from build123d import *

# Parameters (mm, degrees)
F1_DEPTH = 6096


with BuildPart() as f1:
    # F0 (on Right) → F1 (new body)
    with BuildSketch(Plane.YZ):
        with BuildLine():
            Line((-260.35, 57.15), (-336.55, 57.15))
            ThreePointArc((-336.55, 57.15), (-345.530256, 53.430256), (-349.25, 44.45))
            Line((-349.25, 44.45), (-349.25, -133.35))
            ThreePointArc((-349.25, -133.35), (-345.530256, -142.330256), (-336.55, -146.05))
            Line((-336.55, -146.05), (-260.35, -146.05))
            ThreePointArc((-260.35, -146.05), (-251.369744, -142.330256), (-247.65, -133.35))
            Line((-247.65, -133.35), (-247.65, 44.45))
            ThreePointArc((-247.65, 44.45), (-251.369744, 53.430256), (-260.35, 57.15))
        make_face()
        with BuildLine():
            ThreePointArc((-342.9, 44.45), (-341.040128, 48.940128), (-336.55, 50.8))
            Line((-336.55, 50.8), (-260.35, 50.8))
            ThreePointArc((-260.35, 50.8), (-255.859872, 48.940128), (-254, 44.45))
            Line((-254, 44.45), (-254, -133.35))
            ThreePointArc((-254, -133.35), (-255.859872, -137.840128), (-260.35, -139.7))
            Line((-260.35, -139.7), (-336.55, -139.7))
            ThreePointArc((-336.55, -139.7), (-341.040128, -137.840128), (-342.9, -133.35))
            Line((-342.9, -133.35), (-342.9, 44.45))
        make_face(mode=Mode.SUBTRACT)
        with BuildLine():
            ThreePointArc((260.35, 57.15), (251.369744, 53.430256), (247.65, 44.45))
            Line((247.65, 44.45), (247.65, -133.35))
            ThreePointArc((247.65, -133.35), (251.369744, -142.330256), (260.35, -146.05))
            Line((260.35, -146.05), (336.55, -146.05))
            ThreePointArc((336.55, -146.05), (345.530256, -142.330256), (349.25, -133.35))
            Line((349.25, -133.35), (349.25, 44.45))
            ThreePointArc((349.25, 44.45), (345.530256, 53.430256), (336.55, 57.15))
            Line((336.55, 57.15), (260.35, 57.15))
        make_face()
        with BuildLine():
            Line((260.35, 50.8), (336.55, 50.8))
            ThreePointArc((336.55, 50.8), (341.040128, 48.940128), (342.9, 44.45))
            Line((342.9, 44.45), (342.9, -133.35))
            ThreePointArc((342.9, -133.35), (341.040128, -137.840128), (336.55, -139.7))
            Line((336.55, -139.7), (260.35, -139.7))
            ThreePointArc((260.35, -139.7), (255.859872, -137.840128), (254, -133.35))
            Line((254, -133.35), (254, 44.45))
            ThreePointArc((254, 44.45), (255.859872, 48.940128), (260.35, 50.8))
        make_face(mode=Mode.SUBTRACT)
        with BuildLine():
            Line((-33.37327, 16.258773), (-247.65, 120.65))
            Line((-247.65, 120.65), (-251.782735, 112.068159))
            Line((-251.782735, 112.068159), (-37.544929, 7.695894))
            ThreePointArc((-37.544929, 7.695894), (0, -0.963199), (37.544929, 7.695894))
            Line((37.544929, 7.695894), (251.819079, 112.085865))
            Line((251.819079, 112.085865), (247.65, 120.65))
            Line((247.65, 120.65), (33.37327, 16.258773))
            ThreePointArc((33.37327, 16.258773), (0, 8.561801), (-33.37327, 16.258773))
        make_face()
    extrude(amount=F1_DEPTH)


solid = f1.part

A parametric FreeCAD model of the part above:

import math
import FreeCAD as App
import Part
import Sketcher

V = App.Vector
Q = App.Units.Quantity

doc = App.newDocument("Part")
body = doc.addObject("PartDesign::Body", "Body")
body.AllowCompound = True

sketch1 = body.newObject("Sketcher::SketchObject", "Sketch")
sketch1.AttachmentSupport = (doc.getObject("YZ_Plane"), [""])
sketch1.MapMode = "FlatFace"
sketch1.addGeometry(Part.LineSegment(V(-260.35, 57.15, 0), V(-336.55, 57.15, 0)), False)
sketch1.addGeometry(Part.ArcOfCircle(Part.Circle(V(-336.55, 44.45, 0), V(0, 0, 1), 12.7), math.radians(90.000002), math.radians(179.999998)), False)
sketch1.addGeometry(Part.LineSegment(V(-349.25, 44.45, 0), V(-349.25, -133.35, 0)), False)
sketch1.addGeometry(Part.ArcOfCircle(Part.Circle(V(-336.55, -133.35, 0), V(0, 0, 1), 12.7), math.radians(-179.999998), math.radians(-90.000002)), False)
sketch1.addGeometry(Part.LineSegment(V(-336.55, -146.05, 0), V(-260.35, -146.05, 0)), False)
sketch1.addGeometry(Part.ArcOfCircle(Part.Circle(V(-260.35, -133.35, 0), V(0, 0, 1), 12.7), math.radians(-89.999998), math.radians(-0.000002)), False)
sketch1.addGeometry(Part.LineSegment(V(-247.65, -133.35, 0), V(-247.65, 44.45, 0)), False)
sketch1.addGeometry(Part.ArcOfCircle(Part.Circle(V(-260.35, 44.45, 0), V(0, 0, 1), 12.7), math.radians(0.000002), math.radians(89.999998)), False)
sketch1.addGeometry(Part.LineSegment(V(-342.9, -133.35, 0), V(-342.9, 44.45, 0)), False)
sketch1.addGeometry(Part.ArcOfCircle(Part.Circle(V(-336.55, 44.45, 0), V(0, 0, 1), 6.35), math.radians(90.000002), math.radians(179.999998)), False)
sketch1.addGeometry(Part.LineSegment(V(-336.55, 50.8, 0), V(-260.35, 50.8, 0)), False)
sketch1.addGeometry(Part.ArcOfCircle(Part.Circle(V(-260.35, 44.45, 0), V(0, 0, 1), 6.35), math.radians(0.000002), math.radians(89.999998)), False)
sketch1.addGeometry(Part.LineSegment(V(-254, 44.45, 0), V(-254, -133.35, 0)), False)
sketch1.addGeometry(Part.ArcOfCircle(Part.Circle(V(-260.35, -133.35, 0), V(0, 0, 1), 6.35), math.radians(-89.999998), math.radians(-0.000002)), False)
sketch1.addGeometry(Part.LineSegment(V(-260.35, -139.7, 0), V(-336.55, -139.7, 0)), False)
sketch1.addGeometry(Part.ArcOfCircle(Part.Circle(V(-336.55, -133.35, 0), V(0, 0, 1), 6.35), math.radians(-179.999998), math.radians(-90.000002)), False)
sketch1.addGeometry(Part.ArcOfCircle(Part.Circle(V(260.35, 44.45, 0), V(0, 0, 1), 12.7), math.radians(90.000002), math.radians(179.999998)), False)
sketch1.addGeometry(Part.LineSegment(V(247.65, 44.45, 0), V(247.65, -133.35, 0)), False)
sketch1.addGeometry(Part.ArcOfCircle(Part.Circle(V(260.35, -133.35, 0), V(0, 0, 1), 12.7), math.radians(-179.999998), math.radians(-90.000002)), False)
sketch1.addGeometry(Part.LineSegment(V(260.35, -146.05, 0), V(336.55, -146.05, 0)), False)
sketch1.addGeometry(Part.ArcOfCircle(Part.Circle(V(336.55, -133.35, 0), V(0, 0, 1), 12.7), math.radians(-89.999998), math.radians(-0.000002)), False)
sketch1.addGeometry(Part.LineSegment(V(349.25, -133.35, 0), V(349.25, 44.45, 0)), False)
sketch1.addGeometry(Part.ArcOfCircle(Part.Circle(V(336.55, 44.45, 0), V(0, 0, 1), 12.7), math.radians(0.000002), math.radians(89.999998)), False)
sketch1.addGeometry(Part.LineSegment(V(336.55, 57.15, 0), V(260.35, 57.15, 0)), False)
sketch1.addGeometry(Part.ArcOfCircle(Part.Circle(V(260.35, 44.45, 0), V(0, 0, 1), 6.35), math.radians(90.000002), math.radians(179.999998)), False)
sketch1.addGeometry(Part.LineSegment(V(260.35, 50.8, 0), V(336.55, 50.8, 0)), False)
sketch1.addGeometry(Part.ArcOfCircle(Part.Circle(V(336.55, 44.45, 0), V(0, 0, 1), 6.35), math.radians(0.000002), math.radians(89.999998)), False)
sketch1.addGeometry(Part.LineSegment(V(342.9, 44.45, 0), V(342.9, -133.35, 0)), False)
sketch1.addGeometry(Part.ArcOfCircle(Part.Circle(V(336.55, -133.35, 0), V(0, 0, 1), 6.35), math.radians(-89.999998), math.radians(-0.000002)), False)
sketch1.addGeometry(Part.LineSegment(V(336.55, -139.7, 0), V(260.35, -139.7, 0)), False)
sketch1.addGeometry(Part.ArcOfCircle(Part.Circle(V(260.35, -133.35, 0), V(0, 0, 1), 6.35), math.radians(-179.999998), math.radians(-90.000002)), False)
sketch1.addGeometry(Part.LineSegment(V(254, -133.35, 0), V(254, 44.45, 0)), False)
sketch1.addGeometry(Part.LineSegment(V(-33.37327, 16.258773, 0), V(-247.65, 120.65, 0)), False)
sketch1.addGeometry(Part.LineSegment(V(-247.65, 120.65, 0), V(-251.782735, 112.068159, 0)), False)
sketch1.addGeometry(Part.LineSegment(V(-251.782735, 112.068159, 0), V(-37.544929, 7.695894, 0)), False)
sketch1.addGeometry(Part.ArcOfCircle(Part.Circle(V(0, 84.761806, 0), V(0, 0, 1), 85.725005), math.radians(-115.974392), math.radians(-64.025608)), False)
sketch1.addGeometry(Part.LineSegment(V(37.544929, 7.695894, 0), V(251.819079, 112.085865, 0)), False)
sketch1.addGeometry(Part.LineSegment(V(251.819079, 112.085865, 0), V(247.65, 120.65, 0)), False)
sketch1.addGeometry(Part.LineSegment(V(247.65, 120.65, 0), V(33.37327, 16.258773, 0)), False)
sketch1.addGeometry(Part.ArcOfCircle(Part.Circle(V(0, 84.761801, 0), V(0, 0, 1), 76.2), math.radians(-115.974394), math.radians(-64.025606)), False)
sketch1.addConstraint(Sketcher.Constraint("Coincident", 0, 2, 1, 1))
sketch1.addConstraint(Sketcher.Constraint("Coincident", 1, 2, 2, 1))
sketch1.addConstraint(Sketcher.Constraint("Coincident", 2, 2, 3, 1))
sketch1.addConstraint(Sketcher.Constraint("Coincident", 3, 2, 4, 1))
sketch1.addConstraint(Sketcher.Constraint("Coincident", 4, 2, 5, 1))
sketch1.addConstraint(Sketcher.Constraint("Coincident", 5, 2, 6, 1))
sketch1.addConstraint(Sketcher.Constraint("Coincident", 6, 2, 7, 1))
sketch1.addConstraint(Sketcher.Constraint("Coincident", 7, 2, 0, 1))
sketch1.addConstraint(Sketcher.Constraint("Coincident", 8, 2, 9, 2))
sketch1.addConstraint(Sketcher.Constraint("Coincident", 9, 1, 10, 1))
sketch1.addConstraint(Sketcher.Constraint("Coincident", 10, 2, 11, 2))
sketch1.addConstraint(Sketcher.Constraint("Coincident", 11, 1, 12, 1))
sketch1.addConstraint(Sketcher.Constraint("Coincident", 12, 2, 13, 2))
sketch1.addConstraint(Sketcher.Constraint("Coincident", 13, 1, 14, 1))
sketch1.addConstraint(Sketcher.Constraint("Coincident", 14, 2, 15, 2))
sketch1.addConstraint(Sketcher.Constraint("Coincident", 15, 1, 8, 1))
sketch1.addConstraint(Sketcher.Constraint("Coincident", 16, 2, 17, 1))
sketch1.addConstraint(Sketcher.Constraint("Coincident", 17, 2, 18, 1))
sketch1.addConstraint(Sketcher.Constraint("Coincident", 18, 2, 19, 1))
sketch1.addConstraint(Sketcher.Constraint("Coincident", 19, 2, 20, 1))
sketch1.addConstraint(Sketcher.Constraint("Coincident", 20, 2, 21, 1))
sketch1.addConstraint(Sketcher.Constraint("Coincident", 21, 2, 22, 1))
sketch1.addConstraint(Sketcher.Constraint("Coincident", 22, 2, 23, 1))
sketch1.addConstraint(Sketcher.Constraint("Coincident", 23, 2, 16, 1))
sketch1.addConstraint(Sketcher.Constraint("Coincident", 24, 1, 25, 1))
sketch1.addConstraint(Sketcher.Constraint("Coincident", 25, 2, 26, 2))
sketch1.addConstraint(Sketcher.Constraint("Coincident", 26, 1, 27, 1))
sketch1.addConstraint(Sketcher.Constraint("Coincident", 27, 2, 28, 2))
sketch1.addConstraint(Sketcher.Constraint("Coincident", 28, 1, 29, 1))
sketch1.addConstraint(Sketcher.Constraint("Coincident", 29, 2, 30, 2))
sketch1.addConstraint(Sketcher.Constraint("Coincident", 30, 1, 31, 1))
sketch1.addConstraint(Sketcher.Constraint("Coincident", 31, 2, 24, 2))
sketch1.addConstraint(Sketcher.Constraint("Coincident", 32, 2, 33, 1))
sketch1.addConstraint(Sketcher.Constraint("Coincident", 33, 2, 34, 1))
sketch1.addConstraint(Sketcher.Constraint("Coincident", 34, 2, 35, 1))
sketch1.addConstraint(Sketcher.Constraint("Coincident", 35, 2, 36, 1))
sketch1.addConstraint(Sketcher.Constraint("Coincident", 36, 2, 37, 1))
sketch1.addConstraint(Sketcher.Constraint("Coincident", 37, 2, 38, 1))
sketch1.addConstraint(Sketcher.Constraint("Coincident", 38, 2, 39, 2))
sketch1.addConstraint(Sketcher.Constraint("Coincident", 39, 1, 32, 1))
sketch1.addConstraint(Sketcher.Constraint("Horizontal", 0))
sketch1.addConstraint(Sketcher.Constraint("Vertical", 2))
sketch1.addConstraint(Sketcher.Constraint("Horizontal", 4))
sketch1.addConstraint(Sketcher.Constraint("Vertical", 6))
sketch1.addConstraint(Sketcher.Constraint("Vertical", 8))
sketch1.addConstraint(Sketcher.Constraint("Horizontal", 10))
sketch1.addConstraint(Sketcher.Constraint("Vertical", 12))
sketch1.addConstraint(Sketcher.Constraint("Horizontal", 14))
sketch1.addConstraint(Sketcher.Constraint("Vertical", 17))
sketch1.addConstraint(Sketcher.Constraint("Horizontal", 19))
sketch1.addConstraint(Sketcher.Constraint("Vertical", 21))
sketch1.addConstraint(Sketcher.Constraint("Horizontal", 23))
sketch1.addConstraint(Sketcher.Constraint("Horizontal", 25))
sketch1.addConstraint(Sketcher.Constraint("Vertical", 27))
sketch1.addConstraint(Sketcher.Constraint("Horizontal", 29))
sketch1.addConstraint(Sketcher.Constraint("Vertical", 31))
sketch1.addConstraint(Sketcher.Constraint("Coincident", 9, 3, 1, 3))
sketch1.addConstraint(Sketcher.Constraint("Coincident", 11, 3, 7, 3))
sketch1.addConstraint(Sketcher.Constraint("Coincident", 13, 3, 5, 3))
sketch1.addConstraint(Sketcher.Constraint("Coincident", 24, 3, 16, 3))
sketch1.addConstraint(Sketcher.Constraint("Coincident", 26, 3, 22, 3))
sketch1.addConstraint(Sketcher.Constraint("Coincident", 28, 3, 20, 3))
sketch1.addConstraint(Sketcher.Constraint("Coincident", 39, 3, 35, 3))
sketch1.addConstraint(Sketcher.Constraint("PointOnObject", 35, 3, -2))
sketch1.addConstraint(Sketcher.Constraint("Radius", 39, Q("3 in")))
sketch1.addConstraint(Sketcher.Constraint("Radius", 1, Q("0.5 in")))
sketch1.addConstraint(Sketcher.Constraint("Radius", 3, Q("0.5 in")))
sketch1.addConstraint(Sketcher.Constraint("Radius", 5, Q("0.5 in")))
sketch1.addConstraint(Sketcher.Constraint("Radius", 7, Q("0.5 in")))
sketch1.addConstraint(Sketcher.Constraint("Radius", 16, Q("0.5 in")))
sketch1.addConstraint(Sketcher.Constraint("Radius", 18, Q("0.5 in")))
sketch1.addConstraint(Sketcher.Constraint("Radius", 20, Q("0.5 in")))
sketch1.addConstraint(Sketcher.Constraint("Radius", 22, Q("0.5 in")))
sketch1.addConstraint(Sketcher.Constraint("DistanceX", 0, 2, 0, 1, Q("3 in")))
sketch1.addConstraint(Sketcher.Constraint("DistanceX", 4, 1, 4, 2, Q("3 in")))
sketch1.addConstraint(Sketcher.Constraint("DistanceX", 10, 1, 10, 2, Q("3 in")))
sketch1.addConstraint(Sketcher.Constraint("DistanceX", 14, 2, 14, 1, Q("3 in")))
sketch1.addConstraint(Sketcher.Constraint("DistanceX", 19, 1, 19, 2, Q("3 in")))
sketch1.addConstraint(Sketcher.Constraint("DistanceX", 23, 2, 23, 1, Q("3 in")))
sketch1.addConstraint(Sketcher.Constraint("DistanceX", 25, 1, 25, 2, Q("3 in")))
sketch1.addConstraint(Sketcher.Constraint("DistanceX", 29, 2, 29, 1, Q("3 in")))
sketch1.addConstraint(Sketcher.Constraint("DistanceY", 2, 2, 2, 1, Q("7 in")))
sketch1.addConstraint(Sketcher.Constraint("DistanceY", 6, 1, 6, 2, Q("7 in")))
sketch1.addConstraint(Sketcher.Constraint("DistanceY", 8, 1, 8, 2, Q("7 in")))
sketch1.addConstraint(Sketcher.Constraint("DistanceY", 12, 2, 12, 1, Q("7 in")))
sketch1.addConstraint(Sketcher.Constraint("DistanceY", 17, 2, 17, 1, Q("7 in")))
sketch1.addConstraint(Sketcher.Constraint("DistanceY", 21, 1, 21, 2, Q("7 in")))
sketch1.addConstraint(Sketcher.Constraint("DistanceY", 27, 2, 27, 1, Q("7 in")))
sketch1.addConstraint(Sketcher.Constraint("DistanceY", 31, 1, 31, 2, Q("7 in")))
sketch1.addConstraint(Sketcher.Constraint("Radius", 9, Q("0.25 in")))
sketch1.addConstraint(Sketcher.Constraint("Radius", 15, Q("0.25 in")))
sketch1.addConstraint(Sketcher.Constraint("Radius", 24, Q("0.25 in")))
sketch1.addConstraint(Sketcher.Constraint("Radius", 30, Q("0.25 in")))
sketch1.addConstraint(Sketcher.Constraint("DistanceY", -1, 1, 9, 1, Q("2 in")))
sketch1.addConstraint(Sketcher.Constraint("DistanceX", 11, 1, -1, 1, Q("10 in")))
sketch1.addConstraint(Sketcher.Constraint("DistanceY", -1, 1, 24, 1, Q("2 in")))
sketch1.addConstraint(Sketcher.Constraint("DistanceX", -1, 1, 30, 1, Q("10 in")))
sketch1.addConstraint(Sketcher.Constraint("DistanceY", 3, 3, 1, 3, Q("7 in")))
sketch1.addConstraint(Sketcher.Constraint("DistanceX", 3, 3, 5, 3, Q("3 in")))
sketch1.addConstraint(Sketcher.Constraint("DistanceY", 18, 3, 16, 3, Q("7 in")))
sketch1.addConstraint(Sketcher.Constraint("DistanceX", 18, 3, 20, 3, Q("3 in")))
sketch1.addConstraint(Sketcher.Constraint("DistanceX", 0, 2, 7, 3, Q("3 in")))
sketch1.addConstraint(Sketcher.Constraint("DistanceX", 3, 2, 5, 3, Q("3 in")))
sketch1.addConstraint(Sketcher.Constraint("DistanceY", 18, 3, 16, 2, Q("7 in")))
sketch1.addConstraint(Sketcher.Constraint("DistanceX", 18, 2, 20, 3, Q("3 in")))
sketch1.addConstraint(Sketcher.Constraint("DistanceX", 16, 3, 22, 2, Q("3 in")))
sketch1.addConstraint(Sketcher.Constraint("DistanceX", 24, 1, 22, 3, Q("3 in")))
sketch1.addConstraint(Sketcher.Constraint("DistanceY", 6, 2, 32, 2, Q("3 in")))
sketch1.addConstraint(Sketcher.Constraint("DistanceY", 11, 1, 32, 2, Q("3 in")))
sketch1.addConstraint(Sketcher.Constraint("DistanceY", 11, 3, 32, 2, Q("3 in")))
sketch1.addConstraint(Sketcher.Constraint("DistanceY", 16, 2, 37, 2, Q("3 in")))
sketch1.addConstraint(Sketcher.Constraint("DistanceY", 31, 2, 37, 2, Q("3 in")))
sketch1.addConstraint(Sketcher.Constraint("DistanceY", 1, 2, 0, 2, Q("0.5 in")))
sketch1.addConstraint(Sketcher.Constraint("DistanceY", 8, 2, 0, 2, Q("0.5 in")))
sketch1.addConstraint(Sketcher.Constraint("DistanceX", 1, 2, 9, 1, Q("0.5 in")))
sketch1.addConstraint(Sketcher.Constraint("DistanceX", 13, 1, 5, 2, Q("0.5 in")))
sketch1.addConstraint(Sketcher.Constraint("DistanceY", 19, 2, 20, 2, Q("0.5 in")))
sketch1.addConstraint(Sketcher.Constraint("DistanceY", 26, 1, 22, 2, Q("0.5 in")))
sketch1.addConstraint(Sketcher.Constraint("DistanceX", 28, 1, 20, 2, Q("0.5 in")))
sketch1.addConstraint(Sketcher.Constraint("DistanceX", 7, 2, 32, 2, Q("0.5 in")))
sketch1.addConstraint(Sketcher.Constraint("DistanceX", 37, 2, 23, 2, Q("0.5 in")))
sketch1.addConstraint(Sketcher.Constraint("Distance", 37, Q("0.375 in")))
sketch1.addConstraint(Sketcher.Constraint("Radius", 35, Q("85.725005 mm")))
sketch1.addConstraint(Sketcher.Constraint("Distance", 33, Q("9.525098 mm")))
sketch1.addConstraint(Sketcher.Constraint("DistanceY", -1, 1, 39, 3, Q("84.761801 mm")))
sketch1.addConstraint(Sketcher.Constraint("DistanceX", 34, 2, 38, 2, Q("70.918199 mm")))
sketch1.addConstraint(Sketcher.Constraint("DistanceX", 39, 1, 35, 2, Q("70.918199 mm")))
sketch1.addConstraint(Sketcher.Constraint("DistanceY", -1, 1, 33, 2, Q("112.068159 mm")))
sketch1.addConstraint(Sketcher.Constraint("DistanceX", 34, 2, -1, 1, Q("37.544929 mm")))
sketch1.addConstraint(Sketcher.Constraint("DistanceX", -1, 1, 35, 2, Q("37.544929 mm")))
sketch1.addConstraint(Sketcher.Constraint("DistanceX", -1, 1, 36, 2, Q("251.819079 mm")))
pad1 = body.newObject("PartDesign::Pad", "Pad")
pad1.Profile = sketch1
pad1.Length = Q("240 in")

doc.recompute()
